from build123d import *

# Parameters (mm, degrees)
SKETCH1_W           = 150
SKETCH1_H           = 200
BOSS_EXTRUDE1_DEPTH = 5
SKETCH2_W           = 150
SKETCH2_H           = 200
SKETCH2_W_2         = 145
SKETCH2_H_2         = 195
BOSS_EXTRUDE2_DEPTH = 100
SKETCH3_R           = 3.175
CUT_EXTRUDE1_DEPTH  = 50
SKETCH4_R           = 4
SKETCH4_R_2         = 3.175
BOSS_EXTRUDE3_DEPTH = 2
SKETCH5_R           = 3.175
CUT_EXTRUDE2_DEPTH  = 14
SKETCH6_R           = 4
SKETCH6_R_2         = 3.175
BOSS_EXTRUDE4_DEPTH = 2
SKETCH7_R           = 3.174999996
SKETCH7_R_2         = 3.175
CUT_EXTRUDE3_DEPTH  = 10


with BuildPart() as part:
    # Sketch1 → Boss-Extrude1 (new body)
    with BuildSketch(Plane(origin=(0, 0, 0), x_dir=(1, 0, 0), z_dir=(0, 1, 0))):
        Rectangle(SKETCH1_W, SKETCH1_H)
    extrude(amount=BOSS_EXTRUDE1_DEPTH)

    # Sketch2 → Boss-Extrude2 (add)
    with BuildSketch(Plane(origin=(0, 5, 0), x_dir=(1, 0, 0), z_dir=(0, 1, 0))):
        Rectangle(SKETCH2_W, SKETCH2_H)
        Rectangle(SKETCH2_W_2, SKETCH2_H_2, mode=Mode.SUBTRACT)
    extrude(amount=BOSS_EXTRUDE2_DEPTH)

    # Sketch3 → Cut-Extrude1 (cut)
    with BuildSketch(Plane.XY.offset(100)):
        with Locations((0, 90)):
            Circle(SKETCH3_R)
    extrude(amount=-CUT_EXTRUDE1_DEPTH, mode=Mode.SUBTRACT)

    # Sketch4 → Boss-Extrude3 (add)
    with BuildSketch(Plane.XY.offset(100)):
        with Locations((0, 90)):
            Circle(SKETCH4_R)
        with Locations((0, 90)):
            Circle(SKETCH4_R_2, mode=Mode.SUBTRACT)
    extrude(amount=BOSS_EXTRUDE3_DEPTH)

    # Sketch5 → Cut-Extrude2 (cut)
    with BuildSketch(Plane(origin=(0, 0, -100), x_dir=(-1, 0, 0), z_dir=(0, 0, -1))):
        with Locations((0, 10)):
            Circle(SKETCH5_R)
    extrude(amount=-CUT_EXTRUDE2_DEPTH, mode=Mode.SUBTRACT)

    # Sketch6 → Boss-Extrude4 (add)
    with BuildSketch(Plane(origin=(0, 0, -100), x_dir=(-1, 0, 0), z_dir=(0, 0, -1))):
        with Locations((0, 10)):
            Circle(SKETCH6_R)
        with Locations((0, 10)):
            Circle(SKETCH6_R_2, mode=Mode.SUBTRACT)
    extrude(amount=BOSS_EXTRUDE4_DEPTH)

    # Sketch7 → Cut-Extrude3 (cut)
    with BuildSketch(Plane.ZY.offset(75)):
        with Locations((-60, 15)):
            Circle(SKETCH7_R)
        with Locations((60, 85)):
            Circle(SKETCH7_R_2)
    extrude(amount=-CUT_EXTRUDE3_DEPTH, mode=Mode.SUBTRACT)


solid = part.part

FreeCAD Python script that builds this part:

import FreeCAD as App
import Part
import Sketcher

doc = App.newDocument("Part")
params = doc.addObject("Spreadsheet::Sheet", "Params")
for row, (alias, value) in enumerate([
    ("sketch1_width", "150 mm"),
    ("sketch1_height", "200 mm"),
    ("pad1_length", "5 mm"),
    ("sketch2_width", "150 mm"),
    ("sketch2_width2", "145 mm"),
    ("sketch2_height", "200 mm"),
    ("sketch2_height2", "195 mm"),
    ("pad2_length", "100 mm"),
    ("sketch3_diameter", "6.35 mm"),
    ("pocket1_length", "50 mm"),
    ("sketch4_diameter", "8 mm"),
    ("sketch4_diameter2", "6.35 mm"),
    ("pad3_length", "2 mm"),
    ("sketch5_diameter", "6.35 mm"),
    ("pocket2_length", "14 mm"),
    ("sketch6_diameter", "8 mm"),
    ("sketch6_diameter2", "6.35 mm"),
    ("pad4_length", "2 mm"),
    ("sketch7_diameter", "6.35 mm"),
    ("pocket3_length", "10 mm"),
], start=1):
    params.set(f"A{row}", alias)
    params.set(f"B{row}", "=" + value)
    params.setAlias(f"B{row}", alias)

body = doc.addObject("PartDesign::Body", "Body")

# Sketch on XZ plane
sketch1 = body.newObject("Sketcher::SketchObject", "Sketch")
sketch1.AttachmentSupport = (doc.getObject("XZ_Plane"), [""])
sketch1.MapMode = "FlatFace"
sketch1.addGeometry(Part.LineSegment(App.Vector(-75, -100, 0), App.Vector(-75, 100, 0)), False)
sketch1.addGeometry(Part.LineSegment(App.Vector(-75, 100, 0), App.Vector(75, 100, 0)), False)
sketch1.addGeometry(Part.LineSegment(App.Vector(75, 100, 0), App.Vector(75, -100, 0)), False)
sketch1.addGeometry(Part.LineSegment(App.Vector(75, -100, 0), App.Vector(-75, -100, 0)), False)
sketch1.addConstraint(Sketcher.Constraint("Coincident", 0, 2, 1, 1))
sketch1.addConstraint(Sketcher.Constraint("Coincident", 1, 2, 2, 1))
sketch1.addConstraint(Sketcher.Constraint("Coincident", 2, 2, 3, 1))
sketch1.addConstraint(Sketcher.Constraint("Coincident", 3, 2, 0, 1))
sketch1.addConstraint(Sketcher.Constraint("Vertical", 0))
sketch1.addConstraint(Sketcher.Constraint("Horizontal", 1))
sketch1.addConstraint(Sketcher.Constraint("Vertical", 2))
sketch1.addConstraint(Sketcher.Constraint("Horizontal", 3))
sketch1.addConstraint(Sketcher.Constraint("Symmetric", 0, 2, 2, 2, -1, 1))
sketch1.addConstraint(Sketcher.Constraint("DistanceX", 1, 1, 1, 2, 150.0))
sketch1.addConstraint(Sketcher.Constraint("DistanceY", 0, 1, 0, 2, 200.0))
sketch1.setExpression("Constraints[9]", "Params.sketch1_width")
sketch1.setExpression("Constraints[10]", "Params.sketch1_height")
pad1 = body.newObject("PartDesign::Pad", "Pad")
pad1.Profile = sketch1
pad1.setExpression("Length", "Params.pad1_length")
pad1.Reversed = True

# Sketch on XZ plane
sketch2 = body.newObject("Sketcher::SketchObject", "Sketch001")
sketch2.AttachmentSupport = (doc.getObject("XZ_Plane"), [""])
sketch2.MapMode = "FlatFace"
sketch2.AttachmentOffset = App.Placement(App.Vector(0, 0, -5), App.Rotation())
sketch2.addGeometry(Part.LineSegment(App.Vector(-75, -100, 0), App.Vector(-75, 100, 0)), False)
sketch2.addGeometry(Part.LineSegment(App.Vector(-75, 100, 0), App.Vector(75, 100, 0)), False)
sketch2.addGeometry(Part.LineSegment(App.Vector(75, 100, 0), App.Vector(75, -100, 0)), False)
sketch2.addGeometry(Part.LineSegment(App.Vector(75, -100, 0), App.Vector(-75, -100, 0)), False)
sketch2.addGeometry(Part.LineSegment(App.Vector(72, 98, 0), App.Vector(-72, 98, 0)), False)
sketch2.addGeometry(Part.LineSegment(App.Vector(-72, 98, 0), App.Vector(-72, -98, 0)), False)
sketch2.addGeometry(Part.LineSegment(App.Vector(-72, -98, 0), App.Vector(72, -98, 0)), False)
sketch2.addGeometry(Part.LineSegment(App.Vector(72, -98, 0), App.Vector(72, 98, 0)), False)
sketch2.addConstraint(Sketcher.Constraint("Coincident", 0, 2, 1, 1))
sketch2.addConstraint(Sketcher.Constraint("Coincident", 1, 2, 2, 1))
sketch2.addConstraint(Sketcher.Constraint("Coincident", 2, 2, 3, 1))
sketch2.addConstraint(Sketcher.Constraint("Coincident", 3, 2, 0, 1))
sketch2.addConstraint(Sketcher.Constraint("Coincident", 4, 2, 5, 1))
sketch2.addConstraint(Sketcher.Constraint("Coincident", 5, 2, 6, 1))
sketch2.addConstraint(Sketcher.Constraint("Coincident", 6, 2, 7, 1))
sketch2.addConstraint(Sketcher.Constraint("Coincident", 7, 2, 4, 1))
sketch2.addConstraint(Sketcher.Constraint("Vertical", 0))
sketch2.addConstraint(Sketcher.Constraint("Horizontal", 1))
sketch2.addConstraint(Sketcher.Constraint("Vertical", 2))
sketch2.addConstraint(Sketcher.Constraint("Horizontal", 3))
sketch2.addConstraint(Sketcher.Constraint("Horizontal", 4))
sketch2.addConstraint(Sketcher.Constraint("Vertical", 5))
sketch2.addConstraint(Sketcher.Constraint("Horizontal", 6))
sketch2.addConstraint(Sketcher.Constraint("Vertical", 7))
sketch2.addConstraint(Sketcher.Constraint("Symmetric", 0, 2, 2, 2, -1, 1))
sketch2.addConstraint(Sketcher.Constraint("Symmetric", 4, 2, 6, 2, -1, 1))
sketch2.addConstraint(Sketcher.Constraint("DistanceX", 1, 1, 1, 2, 150.0))
sketch2.addConstraint(Sketcher.Constraint("DistanceX", 4, 2, 4, 1, 145.0))
sketch2.addConstraint(Sketcher.Constraint("DistanceY", 0, 1, 0, 2, 200.0))
sketch2.addConstraint(Sketcher.Constraint("DistanceY", 5, 2, 5, 1, 195.0))
sketch2.setExpression("Constraints[18]", "Params.sketch2_width")
sketch2.setExpression("Constraints[19]", "Params.sketch2_width2")
sketch2.setExpression("Constraints[20]", "Params.sketch2_height")
sketch2.setExpression("Constraints[21]", "Params.sketch2_height2")
pad2 = body.newObject("PartDesign::Pad", "Pad001")
pad2.Profile = sketch2
pad2.setExpression("Length", "Params.pad2_length")
pad2.Reversed = True

# Sketch on XY plane
sketch3 = body.newObject("Sketcher::SketchObject", "Sketch002")
sketch3.AttachmentSupport = (doc.getObject("XY_Plane"), [""])
sketch3.MapMode = "FlatFace"
sketch3.AttachmentOffset = App.Placement(App.Vector(0, 0, 100), App.Rotation())
sketch3.addGeometry(Part.Circle(App.Vector(0, 90, 0), App.Vector(0, 0, 1), 3.2), False)
sketch3.addConstraint(Sketcher.Constraint("PointOnObject", 0, 3, -2))
sketch3.addConstraint(Sketcher.Constraint("Diameter", 0, 6.35))
sketch3.addConstraint(Sketcher.Constraint("DistanceY", -1, 1, 0, 3, 90.0))
sketch3.setExpression("Constraints[1]", "Params.sketch3_diameter")
pocket1 = body.newObject("PartDesign::Pocket", "Pocket")
pocket1.Profile = sketch3
pocket1.setExpression("Length", "Params.pocket1_length")

# Sketch on XY plane
sketch4 = body.newObject("Sketcher::SketchObject", "Sketch003")
sketch4.AttachmentSupport = (doc.getObject("XY_Plane"), [""])
sketch4.MapMode = "FlatFace"
sketch4.AttachmentOffset = App.Placement(App.Vector(0, 0, 100), App.Rotation())
sketch4.addGeometry(Part.Circle(App.Vector(0, 90, 0), App.Vector(0, 0, 1), 4), False)
sketch4.addGeometry(Part.Circle(App.Vector(0, 90, 0), App.Vector(0, 0, 1), 3.2), False)
sketch4.addConstraint(Sketcher.Constraint("Coincident", 1, 3, 0, 3))
sketch4.addConstraint(Sketcher.Constraint("PointOnObject", 0, 3, -2))
sketch4.addConstraint(Sketcher.Constraint("Diameter", 0, 8.0))
sketch4.addConstraint(Sketcher.Constraint("Diameter", 1, 6.35))
sketch4.addConstraint(Sketcher.Constraint("DistanceY", -1, 1, 0, 3, 90.0))
sketch4.setExpression("Constraints[2]", "Params.sketch4_diameter")
sketch4.setExpression("Constraints[3]", "Params.sketch4_diameter2")
pad3 = body.newObject("PartDesign::Pad", "Pad002")
pad3.Profile = sketch4
pad3.setExpression("Length", "Params.pad3_length")

# Sketch on XY plane
sketch5 = body.newObject("Sketcher::SketchObject", "Sketch004")
sketch5.AttachmentSupport = (doc.getObject("XY_Plane"), [""])
sketch5.MapMode = "FlatFace"
sketch5.AttachmentOffset = App.Placement(App.Vector(0, 0, -100), App.Rotation())
sketch5.addGeometry(Part.Circle(App.Vector(0, 10, 0), App.Vector(0, 0, 1), 3.2), False)
sketch5.addConstraint(Sketcher.Constraint("PointOnObject", 0, 3, -2))
sketch5.addConstraint(Sketcher.Constraint("Diameter", 0, 6.35))
sketch5.addConstraint(Sketcher.Constraint("DistanceY", -1, 1, 0, 3, 10.0))
sketch5.setExpression("Constraints[1]", "Params.sketch5_diameter")
pocket2 = body.newObject("PartDesign::Pocket", "Pocket001")
pocket2.Profile = sketch5
pocket2.setExpression("Length", "Params.pocket2_length")
pocket2.Reversed = True

# Sketch on XY plane
sketch6 = body.newObject("Sketcher::SketchObject", "Sketch005")
sketch6.AttachmentSupport = (doc.getObject("XY_Plane"), [""])
sketch6.MapMode = "FlatFace"
sketch6.AttachmentOffset = App.Placement(App.Vector(0, 0, -100), App.Rotation())
sketch6.addGeometry(Part.Circle(App.Vector(0, 10, 0), App.Vector(0, 0, 1), 4), False)
sketch6.addGeometry(Part.Circle(App.Vector(0, 10, 0), App.Vector(0, 0, 1), 3.2), False)
sketch6.addConstraint(Sketcher.Constraint("Coincident", 1, 3, 0, 3))
sketch6.addConstraint(Sketcher.Constraint("PointOnObject", 0, 3, -2))
sketch6.addConstraint(Sketcher.Constraint("Diameter", 0, 8.0))
sketch6.addConstraint(Sketcher.Constraint("Diameter", 1, 6.35))
sketch6.addConstraint(Sketcher.Constraint("DistanceY", -1, 1, 0, 3, 10.0))
sketch6.setExpression("Constraints[2]", "Params.sketch6_diameter")
sketch6.setExpression("Constraints[3]", "Params.sketch6_diameter2")
pad4 = body.newObject("PartDesign::Pad", "Pad003")
pad4.Profile = sketch6
pad4.setExpression("Length", "Params.pad4_length")
pad4.Reversed = True

# Sketch on YZ plane
sketch7 = body.newObject("Sketcher::SketchObject", "Sketch006")
sketch7.AttachmentSupport = (doc.getObject("YZ_Plane"), [""])
sketch7.MapMode = "FlatFace"
sketch7.AttachmentOffset = App.Placement(App.Vector(0, 0, -75), App.Rotation())
sketch7.addGeometry(Part.Circle(App.Vector(15, -60, 0), App.Vector(0, 0, 1), 3.2), False)
sketch7.addGeometry(Part.Circle(App.Vector(85, 60, 0), App.Vector(0, 0, 1), 3.2), False)
sketch7.addConstraint(Sketcher.Constraint("Equal", 0, 1))
sketch7.addConstraint(Sketcher.Constraint("Diameter", 0, 6.35))
sketch7.addConstraint(Sketcher.Constraint("DistanceX", -1, 1, 0, 3, 15.0))
sketch7.addConstraint(Sketcher.Constraint("DistanceY", 0, 3, -1, 1, 60.0))
sketch7.addConstraint(Sketcher.Constraint("DistanceX", -1, 1, 1, 3, 85.0))
sketch7.addConstraint(Sketcher.Constraint("DistanceY", -1, 1, 1, 3, 60.0))
sketch7.setExpression("Constraints[1]", "Params.sketch7_diameter")
pocket3 = body.newObject("PartDesign::Pocket", "Pocket002")
pocket3.Profile = sketch7
pocket3.setExpression("Length", "Params.pocket3_length")
pocket3.Reversed = True

doc.recompute()
